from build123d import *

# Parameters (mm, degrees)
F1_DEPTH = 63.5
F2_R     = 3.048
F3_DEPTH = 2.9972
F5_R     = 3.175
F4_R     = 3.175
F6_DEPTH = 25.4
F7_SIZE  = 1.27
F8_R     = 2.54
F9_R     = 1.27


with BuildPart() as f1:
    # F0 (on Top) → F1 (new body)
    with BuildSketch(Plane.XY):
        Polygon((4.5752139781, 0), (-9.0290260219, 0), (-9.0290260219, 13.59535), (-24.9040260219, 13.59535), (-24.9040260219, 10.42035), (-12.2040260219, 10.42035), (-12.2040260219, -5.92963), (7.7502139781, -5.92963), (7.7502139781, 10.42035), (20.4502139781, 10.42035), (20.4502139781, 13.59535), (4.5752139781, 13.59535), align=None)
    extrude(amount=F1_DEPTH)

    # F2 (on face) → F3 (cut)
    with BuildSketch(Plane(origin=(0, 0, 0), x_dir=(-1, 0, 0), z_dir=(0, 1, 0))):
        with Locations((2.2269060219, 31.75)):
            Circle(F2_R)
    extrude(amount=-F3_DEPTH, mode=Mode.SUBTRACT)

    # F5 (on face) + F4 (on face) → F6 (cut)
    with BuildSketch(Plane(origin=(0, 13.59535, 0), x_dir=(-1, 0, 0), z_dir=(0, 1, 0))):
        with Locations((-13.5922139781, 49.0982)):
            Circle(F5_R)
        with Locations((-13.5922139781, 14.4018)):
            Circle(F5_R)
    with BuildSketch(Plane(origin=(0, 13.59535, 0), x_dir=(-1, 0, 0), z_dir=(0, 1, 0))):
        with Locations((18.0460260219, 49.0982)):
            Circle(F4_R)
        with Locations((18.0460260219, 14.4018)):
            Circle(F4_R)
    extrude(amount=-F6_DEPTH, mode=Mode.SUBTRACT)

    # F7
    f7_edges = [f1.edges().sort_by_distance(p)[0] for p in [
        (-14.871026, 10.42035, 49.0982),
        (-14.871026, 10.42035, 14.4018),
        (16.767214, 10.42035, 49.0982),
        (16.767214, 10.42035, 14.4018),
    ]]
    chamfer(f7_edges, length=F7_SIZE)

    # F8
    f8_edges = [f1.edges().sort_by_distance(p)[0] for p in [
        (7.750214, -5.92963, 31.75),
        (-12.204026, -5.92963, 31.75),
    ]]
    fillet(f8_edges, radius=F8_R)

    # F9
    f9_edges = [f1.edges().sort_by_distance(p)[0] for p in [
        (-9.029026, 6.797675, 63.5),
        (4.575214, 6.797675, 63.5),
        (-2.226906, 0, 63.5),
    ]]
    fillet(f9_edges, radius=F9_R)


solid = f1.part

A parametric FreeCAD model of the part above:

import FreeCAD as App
import Part
import Sketcher
from FreeCAD import Vector
Q = App.Units.Quantity


def edges_at(feature, points):
    """Names of the edges that pass closest to the given points."""
    edges = feature.Shape.Edges
    near = lambda p: min(range(len(edges)), key=lambda i: edges[i].distToShape(Part.Vertex(*p))[0])
    return sorted({f"Edge{near(p) + 1}" for p in points})

doc = App.newDocument("Part")
body = doc.addObject("PartDesign::Body", "Body")

sketch1 = doc.addObject("Sketcher::SketchObject", "Sketch")
body.addObject(sketch1)
sketch1.AttachmentSupport = (doc.XY_Plane, [""])
sketch1.MapMode = "FlatFace"
sketch1.addGeometry([
    Part.LineSegment(Vector(4.6, 0, 0), Vector(-9, 0, 0)),
    Part.LineSegment(Vector(-9, 0, 0), Vector(-9, 13.6, 0)),
    Part.LineSegment(Vector(-9, 13.6, 0), Vector(-24.9, 13.6, 0)),
    Part.LineSegment(Vector(-24.9, 13.6, 0), Vector(-24.9, 10.4, 0)),
    Part.LineSegment(Vector(-24.9, 10.4, 0), Vector(-12.2, 10.4, 0)),
    Part.LineSegment(Vector(-12.2, 10.4, 0), Vector(-12.2, -5.9, 0)),
    Part.LineSegment(Vector(-12.2, -5.9, 0), Vector(7.8, -5.9, 0)),
    Part.LineSegment(Vector(7.8, -5.9, 0), Vector(7.8, 10.4, 0)),
    Part.LineSegment(Vector(7.8, 10.4, 0), Vector(20.5, 10.4, 0)),
    Part.LineSegment(Vector(20.5, 10.4, 0), Vector(20.5, 13.6, 0)),
    Part.LineSegment(Vector(20.5, 13.6, 0), Vector(4.6, 13.6, 0)),
    Part.LineSegment(Vector(4.6, 13.6, 0), Vector(4.6, 0, 0)),
], False)
sketch1.addConstraint([
    Sketcher.Constraint("Coincident", 0, 2, 1, 1),
    Sketcher.Constraint("Coincident", 1, 2, 2, 1),
    Sketcher.Constraint("Coincident", 2, 2, 3, 1),
    Sketcher.Constraint("Coincident", 3, 2, 4, 1),
    Sketcher.Constraint("Coincident", 4, 2, 5, 1),
    Sketcher.Constraint("Coincident", 5, 2, 6, 1),
    Sketcher.Constraint("Coincident", 6, 2, 7, 1),
    Sketcher.Constraint("Coincident", 7, 2, 8, 1),
    Sketcher.Constraint("Coincident", 8, 2, 9, 1),
    Sketcher.Constraint("Coincident", 9, 2, 10, 1),
    Sketcher.Constraint("Coincident", 10, 2, 11, 1),
    Sketcher.Constraint("Coincident", 11, 2, 0, 1),
    Sketcher.Constraint("Horizontal", 0),
    Sketcher.Constraint("Vertical", 1),
    Sketcher.Constraint("Horizontal", 2),
    Sketcher.Constraint("Vertical", 3),
    Sketcher.Constraint("Horizontal", 4),
    Sketcher.Constraint("Vertical", 5),
    Sketcher.Constraint("Horizontal", 6),
    Sketcher.Constraint("Vertical", 7),
    Sketcher.Constraint("Horizontal", 8),
    Sketcher.Constraint("Vertical", 9),
    Sketcher.Constraint("Horizontal", 10),
    Sketcher.Constraint("Vertical", 11),
    Sketcher.Constraint("PointOnObject", 0, 2, -1),
    Sketcher.Constraint("Horizontal", 4, 2, 7, 2),
    Sketcher.Constraint("Horizontal", 2, 2, 9, 2),
    Sketcher.Constraint("Equal", 4, 8),
    Sketcher.Constraint("Equal", 2, 10),
    Sketcher.Constraint("DistanceX", 4, 1, 4, 2, Q("0.5 in")),
    Sketcher.Constraint("DistanceX", 2, 2, 2, 1, Q("0.625 in")),
    Sketcher.Constraint("DistanceY", 3, 2, 3, 1, Q("0.125 in")),
    Sketcher.Constraint("DistanceX", 0, 2, 0, 1, Q("0.5356 in")),
    Sketcher.Constraint("DistanceY", 5, 2, 5, 1, Q("0.6437 in")),
    Sketcher.Constraint("DistanceY", 1, 1, 1, 2, 13.59535),
    Sketcher.Constraint("DistanceX", 0, 2, -1, 1, 9.029026),
])
pad1 = doc.addObject("PartDesign::Pad", "Pad")
body.addObject(pad1)
pad1.Profile = sketch1
pad1.Length = Q("2.5 in")

sketch2 = doc.addObject("Sketcher::SketchObject", "Sketch001")
body.addObject(sketch2)
sketch2.AttachmentSupport = (doc.XZ_Plane, [""])
sketch2.MapMode = "FlatFace"
sketch2.addGeometry(Part.Circle(Vector(-2.2, 31.8, 0), Vector(0, 0, 1), 3), False)
sketch2.addConstraint([
    Sketcher.Constraint("Diameter", 0, Q("0.24 in")),
    Sketcher.Constraint("DistanceY", -1, 1, 0, 3, Q("1.25 in")),
    Sketcher.Constraint("DistanceX", 0, 3, -1, 1, 2.226906),
])
pocket1 = doc.addObject("PartDesign::Pocket", "Pocket")
body.addObject(pocket1)
pocket1.Profile = sketch2
pocket1.Length = Q("0.118 in")
pocket1.Reversed = True

sketch3 = doc.addObject("Sketcher::SketchObject", "Sketch002")
body.addObject(sketch3)
sketch3.AttachmentSupport = (doc.XZ_Plane, [""])
sketch3.MapMode = "FlatFace"
sketch3.AttachmentOffset = App.Placement(Vector(0, 0, -13.59535), App.Rotation())
sketch3.addGeometry([
    Part.Circle(Vector(13.6, 49.1, 0), Vector(0, 0, 1), 3.2),
    Part.Circle(Vector(13.6, 14.4, 0), Vector(0, 0, 1), 3.2),
    Part.Circle(Vector(-18, 49.1, 0), Vector(0, 0, 1), 3.2),
    Part.Circle(Vector(-18, 14.4, 0), Vector(0, 0, 1), 3.2),
], False)
sketch3.addConstraint([
    Sketcher.Constraint("Equal", 0, 1),
    Sketcher.Constraint("Equal", 1, 2),
    Sketcher.Constraint("Equal", 2, 3),
    Sketcher.Constraint("Horizontal", 0, 3, 2, 3),
    Sketcher.Constraint("Horizontal", 1, 3, 3, 3),
    Sketcher.Constraint("Vertical", 0, 3, 1, 3),
    Sketcher.Constraint("Vertical", 2, 3, 3, 3),
    Sketcher.Constraint("Diameter", 0, Q("0.25 in")),
    Sketcher.Constraint("DistanceY", -1, 1, 0, 3, Q("1.933 in")),
    Sketcher.Constraint("DistanceY", -1, 1, 1, 3, Q("0.567 in")),
    Sketcher.Constraint("DistanceX", 2, 3, 0, 3, Q("1.2456 in")),
    Sketcher.Constraint("DistanceX", -1, 1, 0, 3, 13.592214),
])
pocket2 = doc.addObject("PartDesign::Pocket", "Pocket001")
body.addObject(pocket2)
pocket2.Profile = sketch3
pocket2.Length = Q("1 in")
pocket2.Reversed = True
doc.recompute()

chamfer = doc.addObject("PartDesign::Chamfer", "Chamfer")
body.addObject(chamfer)
chamfer.Base = (pocket2, edges_at(pocket2, [
    (-14.871, 10.42, 49.098),
    (-14.871, 10.42, 14.402),
    (16.767, 10.42, 49.098),
    (16.767, 10.42, 14.402),
]))
chamfer.Size = Q("0.05 in")
doc.recompute()

fillet = doc.addObject("PartDesign::Fillet", "Fillet")
body.addObject(fillet)
fillet.Base = (chamfer, edges_at(chamfer, [(7.75, -5.93, 31.75), (-12.204, -5.93, 31.75)]))
fillet.Radius = Q("0.1 in")
doc.recompute()

fillet2 = doc.addObject("PartDesign::Fillet", "Fillet001")
body.addObject(fillet2)
fillet2.Base = (fillet, edges_at(fillet, [(-9.029, 6.798, 63.5), (4.575, 6.798, 63.5), (-2.227, 0, 63.5)]))
fillet2.Radius = Q("0.05 in")

doc.recompute()
